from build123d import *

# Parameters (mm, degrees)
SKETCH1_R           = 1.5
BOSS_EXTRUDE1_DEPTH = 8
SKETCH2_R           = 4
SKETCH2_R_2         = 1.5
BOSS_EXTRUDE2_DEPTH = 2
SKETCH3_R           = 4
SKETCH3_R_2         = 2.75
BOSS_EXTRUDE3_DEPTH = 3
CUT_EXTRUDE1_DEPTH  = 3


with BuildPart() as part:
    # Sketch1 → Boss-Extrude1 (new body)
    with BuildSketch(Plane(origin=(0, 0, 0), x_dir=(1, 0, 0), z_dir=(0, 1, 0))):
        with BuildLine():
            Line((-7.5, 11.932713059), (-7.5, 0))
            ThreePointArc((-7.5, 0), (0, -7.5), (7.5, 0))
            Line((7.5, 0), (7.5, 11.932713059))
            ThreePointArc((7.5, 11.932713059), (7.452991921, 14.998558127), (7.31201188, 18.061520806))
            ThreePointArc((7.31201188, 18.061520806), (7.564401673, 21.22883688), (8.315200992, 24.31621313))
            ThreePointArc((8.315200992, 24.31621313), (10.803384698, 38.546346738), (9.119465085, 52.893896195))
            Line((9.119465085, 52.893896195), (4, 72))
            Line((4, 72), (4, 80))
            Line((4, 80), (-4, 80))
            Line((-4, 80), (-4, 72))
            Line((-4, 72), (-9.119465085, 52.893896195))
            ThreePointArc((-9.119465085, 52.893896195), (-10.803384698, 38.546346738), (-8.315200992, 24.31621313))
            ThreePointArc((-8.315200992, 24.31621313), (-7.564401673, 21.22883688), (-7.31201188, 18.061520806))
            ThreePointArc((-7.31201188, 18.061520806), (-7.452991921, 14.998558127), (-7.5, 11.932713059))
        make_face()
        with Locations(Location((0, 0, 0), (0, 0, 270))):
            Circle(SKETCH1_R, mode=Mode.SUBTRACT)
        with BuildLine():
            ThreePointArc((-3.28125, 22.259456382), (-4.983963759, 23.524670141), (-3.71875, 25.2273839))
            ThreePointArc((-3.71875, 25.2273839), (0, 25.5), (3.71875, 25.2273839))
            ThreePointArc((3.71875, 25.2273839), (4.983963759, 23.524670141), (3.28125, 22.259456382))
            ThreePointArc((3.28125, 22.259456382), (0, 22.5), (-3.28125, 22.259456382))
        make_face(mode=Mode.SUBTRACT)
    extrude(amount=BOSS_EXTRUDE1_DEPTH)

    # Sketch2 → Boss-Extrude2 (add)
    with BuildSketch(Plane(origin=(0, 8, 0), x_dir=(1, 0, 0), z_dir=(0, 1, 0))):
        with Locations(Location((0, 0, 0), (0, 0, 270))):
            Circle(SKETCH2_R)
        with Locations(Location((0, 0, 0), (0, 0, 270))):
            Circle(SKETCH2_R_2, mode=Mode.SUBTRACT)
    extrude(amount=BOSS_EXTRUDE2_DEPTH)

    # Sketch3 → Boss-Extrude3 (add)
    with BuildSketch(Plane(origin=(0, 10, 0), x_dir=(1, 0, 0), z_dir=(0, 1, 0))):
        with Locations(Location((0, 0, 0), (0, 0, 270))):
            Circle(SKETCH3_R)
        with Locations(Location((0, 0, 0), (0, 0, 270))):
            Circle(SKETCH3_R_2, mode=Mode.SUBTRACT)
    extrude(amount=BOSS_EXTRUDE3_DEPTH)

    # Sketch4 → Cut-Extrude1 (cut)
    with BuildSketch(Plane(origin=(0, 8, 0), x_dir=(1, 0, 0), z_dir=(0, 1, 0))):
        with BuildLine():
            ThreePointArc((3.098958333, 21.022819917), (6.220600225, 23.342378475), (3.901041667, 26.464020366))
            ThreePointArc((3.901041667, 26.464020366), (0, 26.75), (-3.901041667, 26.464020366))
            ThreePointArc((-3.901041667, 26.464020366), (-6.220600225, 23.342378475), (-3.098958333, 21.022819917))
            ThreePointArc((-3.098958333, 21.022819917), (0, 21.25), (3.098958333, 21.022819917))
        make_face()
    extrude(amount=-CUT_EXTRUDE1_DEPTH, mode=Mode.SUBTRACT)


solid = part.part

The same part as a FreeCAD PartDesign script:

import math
import FreeCAD as App
import Part
import Sketcher

V = App.Vector
Q = App.Units.Quantity

doc = App.newDocument("Part")
body = doc.addObject("PartDesign::Body", "Body")

# Sketch on XZ plane
sketch1 = body.newObject("Sketcher::SketchObject", "Sketch")
sketch1.AttachmentSupport = (doc.getObject("XZ_Plane"), [""])
sketch1.MapMode = "FlatFace"
sketch1.addGeometry([
    Part.LineSegment(V(-7.5, -11.9, 0), V(-7.5, 0, 0)),  # 0
    Part.ArcOfCircle(Part.Circle(V(0, 0, 0), V(0, 0, 1), 7.5), math.radians(0), math.radians(180)),  # 1
    Part.LineSegment(V(7.5, 0, 0), V(7.5, -11.9, 0)),  # 2
    Part.ArcOfCircle(Part.Circle(V(-92.5, -11.9, 0), V(0, 0, 1), 100), math.radians(-3.51), math.radians(0)),  # 3
    Part.ArcOfCircle(Part.Circle(V(27.3, -18.1, 0), V(0, 0, 1), 20), math.radians(180), math.radians(198.22)),  # 4
    Part.ArcOfCircle(Part.Circle(V(-39.2, -40, 0), V(0, 0, 1), 50), math.radians(-15), math.radians(18)),  # 5
    Part.LineSegment(V(9.1, -52.9, 0), V(4, -72, 0)),  # 6
    Part.LineSegment(V(4, -72, 0), V(4, -80, 0)),  # 7
    Part.LineSegment(V(4, -80, 0), V(-4, -80, 0)),  # 8
    Part.LineSegment(V(-4, -80, 0), V(-4, -72, 0)),  # 9
    Part.LineSegment(V(-4, -72, 0), V(-9.1, -52.9, 0)),  # 10
    Part.ArcOfCircle(Part.Circle(V(39.2, -40, 0), V(0, 0, 1), 50), math.radians(162), math.radians(195)),  # 11
    Part.ArcOfCircle(Part.Circle(V(-27.3, -18.1, 0), V(0, 0, 1), 20), math.radians(-18.22), math.radians(0)),  # 12
    Part.ArcOfCircle(Part.Circle(V(92.5, -11.9, 0), V(0, 0, 1), 100), math.radians(-180), math.radians(-176.49)),  # 13
    Part.Circle(V(0, 0, 0), V(0, 0, 1), 1.5),  # 14
    Part.ArcOfCircle(Part.Circle(V(0, 0, 0), V(0, 0, 1), 22.5), math.radians(-98.39), math.radians(-81.61)),  # 15
    Part.ArcOfCircle(Part.Circle(V(-3.5, -23.7, 0), V(0, 0, 1), 1.5), math.radians(82), math.radians(262)),  # 16
    Part.ArcOfCircle(Part.Circle(V(0, 0, 0), V(0, 0, 1), 25.5), math.radians(-98.39), math.radians(-81.61)),  # 17
    Part.ArcOfCircle(Part.Circle(V(3.5, -23.7, 0), V(0, 0, 1), 1.5), math.radians(-82), math.radians(98)),  # 18
], False)
sketch1.addConstraint([
    Sketcher.Constraint("Tangent", 0, 2, 1, 2),
    Sketcher.Constraint("Tangent", 1, 1, 2, 1),
    Sketcher.Constraint("Tangent", 2, 2, 3, 2),
    Sketcher.Constraint("Coincident", 3, 1, 4, 1),
    Sketcher.Constraint("Tangent", 4, 2, 5, 2),
    Sketcher.Constraint("Tangent", 5, 1, 6, 1),
    Sketcher.Constraint("Coincident", 6, 2, 7, 1),
    Sketcher.Constraint("Coincident", 7, 2, 8, 1),
    Sketcher.Constraint("Coincident", 8, 2, 9, 1),
    Sketcher.Constraint("Coincident", 9, 2, 10, 1),
    Sketcher.Constraint("Tangent", 10, 2, 11, 2),
    Sketcher.Constraint("Tangent", 11, 1, 12, 1),
    Sketcher.Constraint("Coincident", 12, 2, 13, 2),
    Sketcher.Constraint("Tangent", 13, 1, 0, 1),
    Sketcher.Constraint("Tangent", 15, 1, 16, 1),
    Sketcher.Constraint("Tangent", 16, 2, 17, 1),
    Sketcher.Constraint("Tangent", 17, 2, 18, 1),
    Sketcher.Constraint("Tangent", 18, 2, 15, 2),
    Sketcher.Constraint("Vertical", 0),
    Sketcher.Constraint("Vertical", 2),
    Sketcher.Constraint("Vertical", 7),
    Sketcher.Constraint("Horizontal", 8),
    Sketcher.Constraint("Vertical", 9),
    Sketcher.Constraint("Coincident", 1, 3, -1, 1),
    Sketcher.Constraint("Coincident", 14, 3, -1, 1),
    Sketcher.Constraint("Coincident", 15, 3, -1, 1),
    Sketcher.Constraint("Coincident", 17, 3, -1, 1),
    Sketcher.Constraint("Equal", 5, 11),
    Sketcher.Constraint("Equal", 4, 12),
    Sketcher.Constraint("Equal", 3, 13),
    Sketcher.Constraint("Equal", 14, 16),
    Sketcher.Constraint("Symmetric", 5, 3, 11, 3, -2),
    Sketcher.Constraint("Symmetric", 6, 2, 9, 2, -2),
    Sketcher.Constraint("Symmetric", 3, 1, 12, 2, -2),
    Sketcher.Constraint("Horizontal", 16, 3, 18, 3),
    Sketcher.Constraint("Horizontal", 12, 3, 3, 1),
    Sketcher.Constraint("Equal", 8, 7),
    Sketcher.Constraint("Diameter", 14, Q("3 mm")),
    Sketcher.Constraint("Radius", 3, Q("100 mm")),
    Sketcher.Constraint("Radius", 4, Q("20 mm")),
    Sketcher.Constraint("Radius", 5, Q("50 mm")),
    Sketcher.Constraint("Radius", 1, Q("7.5 mm")),
    Sketcher.Constraint("Radius", 15, Q("22.5 mm")),
    Sketcher.Constraint("DistanceX", 8, 2, 8, 1, Q("8 mm")),
    Sketcher.Constraint("Angle", 6, Q("-105 deg")),
    Sketcher.Constraint("DistanceY", 6, 2, -1, 1, Q("72 mm")),
    Sketcher.Constraint("DistanceX", 16, 3, 18, 3, Q("7 mm")),
    Sketcher.Constraint("DistanceX", -1, 1, 4, 2, Q("8.315201 mm")),
    Sketcher.Constraint("DistanceY", 16, 3, 12, 3, Q("5.681899 mm")),
])
pad1 = body.newObject("PartDesign::Pad", "Pad")
pad1.Profile = sketch1
pad1.Length = 8
pad1.Reversed = True

# Sketch on XZ plane
sketch2 = body.newObject("Sketcher::SketchObject", "Sketch001")
sketch2.AttachmentSupport = (doc.getObject("XZ_Plane"), [""])
sketch2.MapMode = "FlatFace"
sketch2.AttachmentOffset = App.Placement(V(0, 0, -8), App.Rotation())
sketch2.addGeometry([
    Part.Circle(V(0, 0, 0), V(0, 0, 1), 4),
    Part.Circle(V(0, 0, 0), V(0, 0, 1), 1.5),
], False)
sketch2.addConstraint([
    Sketcher.Constraint("Coincident", 0, 3, -1, 1),
    Sketcher.Constraint("Coincident", 1, 3, -1, 1),
    Sketcher.Constraint("Diameter", 0, Q("8 mm")),
    Sketcher.Constraint("Diameter", 1, Q("3 mm")),
])
pad2 = body.newObject("PartDesign::Pad", "Pad001")
pad2.Profile = sketch2
pad2.Length = 2
pad2.Reversed = True

# Sketch on XZ plane
sketch3 = body.newObject("Sketcher::SketchObject", "Sketch002")
sketch3.AttachmentSupport = (doc.getObject("XZ_Plane"), [""])
sketch3.MapMode = "FlatFace"
sketch3.AttachmentOffset = App.Placement(V(0, 0, -10), App.Rotation())
sketch3.addGeometry([
    Part.Circle(V(0, 0, 0), V(0, 0, 1), 4),
    Part.Circle(V(0, 0, 0), V(0, 0, 1), 2.8),
], False)
sketch3.addConstraint([
    Sketcher.Constraint("Coincident", 0, 3, -1, 1),
    Sketcher.Constraint("Coincident", 1, 3, -1, 1),
    Sketcher.Constraint("Diameter", 0, Q("8 mm")),
    Sketcher.Constraint("Diameter", 1, Q("5.5 mm")),
])
pad3 = body.newObject("PartDesign::Pad", "Pad002")
pad3.Profile = sketch3
pad3.Length = 3
pad3.Reversed = True

# Sketch on XZ plane
sketch4 = body.newObject("Sketcher::SketchObject", "Sketch003")
sketch4.AttachmentSupport = (doc.getObject("XZ_Plane"), [""])
sketch4.MapMode = "FlatFace"
sketch4.AttachmentOffset = App.Placement(V(0, 0, -8), App.Rotation())
sketch4.addGeometry([
    Part.ArcOfCircle(Part.Circle(V(3.5, -23.7, 0), V(0, 0, 1), 2.8), math.radians(-82), math.radians(98)),
    Part.ArcOfCircle(Part.Circle(V(0, 0, 0), V(0, 0, 1), 26.8), math.radians(-98.39), math.radians(-81.61)),
    Part.ArcOfCircle(Part.Circle(V(-3.5, -23.7, 0), V(0, 0, 1), 2.8), math.radians(82), math.radians(262)),
    Part.ArcOfCircle(Part.Circle(V(0, 0, 0), V(0, 0, 1), 21.3), math.radians(-98.39), math.radians(-81.61)),
], False)
sketch4.addConstraint([
    Sketcher.Constraint("Tangent", 0, 1, 1, 2),
    Sketcher.Constraint("Tangent", 1, 1, 2, 2),
    Sketcher.Constraint("Tangent", 2, 1, 3, 1),
    Sketcher.Constraint("Tangent", 3, 2, 0, 2),
    Sketcher.Constraint("Coincident", 1, 3, -1, 1),
    Sketcher.Constraint("Coincident", 3, 3, -1, 1),
    Sketcher.Constraint("Horizontal", 0, 3, 2, 3),
    Sketcher.Constraint("Radius", 0, Q("2.75 mm")),
    Sketcher.Constraint("Radius", 1, Q("26.75 mm")),
    Sketcher.Constraint("DistanceX", 2, 3, 0, 3, Q("7 mm")),
])
pocket1 = body.newObject("PartDesign::Pocket", "Pocket")
pocket1.Profile = sketch4
pocket1.Length = 3
pocket1.Reversed = True

doc.recompute()
